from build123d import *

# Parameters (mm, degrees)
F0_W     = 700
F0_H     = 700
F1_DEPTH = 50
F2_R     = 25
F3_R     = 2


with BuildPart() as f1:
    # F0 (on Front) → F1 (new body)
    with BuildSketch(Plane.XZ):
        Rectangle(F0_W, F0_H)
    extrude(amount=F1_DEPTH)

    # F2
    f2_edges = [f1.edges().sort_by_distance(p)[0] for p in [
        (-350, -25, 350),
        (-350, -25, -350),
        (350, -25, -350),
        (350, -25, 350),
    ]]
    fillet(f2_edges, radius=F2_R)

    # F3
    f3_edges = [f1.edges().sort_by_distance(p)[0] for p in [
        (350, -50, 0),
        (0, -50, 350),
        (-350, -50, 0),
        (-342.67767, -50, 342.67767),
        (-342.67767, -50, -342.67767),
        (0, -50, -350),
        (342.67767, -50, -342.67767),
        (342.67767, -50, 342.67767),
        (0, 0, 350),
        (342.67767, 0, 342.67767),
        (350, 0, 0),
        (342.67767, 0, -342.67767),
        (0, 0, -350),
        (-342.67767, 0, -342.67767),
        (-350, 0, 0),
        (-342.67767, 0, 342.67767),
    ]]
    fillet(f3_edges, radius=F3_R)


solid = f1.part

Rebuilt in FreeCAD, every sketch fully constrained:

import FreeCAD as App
import Part
import Sketcher

V = App.Vector


def edges_at(feature, points):
    """Names of the edges that pass closest to the given points."""
    edges = feature.Shape.Edges
    near = lambda p: min(range(len(edges)), key=lambda i: edges[i].distToShape(Part.Vertex(*p))[0])
    return sorted({f"Edge{near(p) + 1}" for p in points})

doc = App.newDocument("Part")
params = doc.addObject("Spreadsheet::Sheet", "Params")
for row, (alias, value) in enumerate([
    ("sketch1_width", "700 mm"),
    ("pad1_length", "50 mm"),
    ("fillet_radius", "25 mm"),
    ("fillet2_radius", "2 mm"),
], start=1):
    params.set(f"A{row}", alias)
    params.set(f"B{row}", "=" + value)
    params.setAlias(f"B{row}", alias)

body = doc.addObject("PartDesign::Body", "Body")

# Sketch on XZ plane
sketch1 = doc.addObject("Sketcher::SketchObject", "Sketch")
body.addObject(sketch1)
sketch1.AttachmentSupport = (doc.XZ_Plane, [""])
sketch1.MapMode = "FlatFace"
sketch1.addGeometry([
    Part.LineSegment(V(-350, 350, 0), V(-350, -350, 0)),
    Part.LineSegment(V(-350, -350, 0), V(350, -350, 0)),
    Part.LineSegment(V(350, -350, 0), V(350, 350, 0)),
    Part.LineSegment(V(350, 350, 0), V(-350, 350, 0)),
], False)
sketch1.addConstraint([
    Sketcher.Constraint("Coincident", 0, 2, 1, 1),
    Sketcher.Constraint("Coincident", 1, 2, 2, 1),
    Sketcher.Constraint("Coincident", 2, 2, 3, 1),
    Sketcher.Constraint("Coincident", 3, 2, 0, 1),
    Sketcher.Constraint("Vertical", 0),
    Sketcher.Constraint("Horizontal", 1),
    Sketcher.Constraint("Vertical", 2),
    Sketcher.Constraint("Horizontal", 3),
    Sketcher.Constraint("Symmetric", 0, 2, 2, 2, -1, 1),
    Sketcher.Constraint("Equal", 3, 0),
    Sketcher.Constraint("DistanceX", 1, 1, 1, 2, 700.0),
])
sketch1.setExpression("Constraints[10]", "Params.sketch1_width")
pad1 = doc.addObject("PartDesign::Pad", "Pad")
body.addObject(pad1)
pad1.Profile = sketch1
pad1.setExpression("Length", "Params.pad1_length")
doc.recompute()

fillet = doc.addObject("PartDesign::Fillet", "Fillet")
body.addObject(fillet)
fillet.Base = (pad1, edges_at(pad1, [
    (-350, -25, 350),
    (-350, -25, -350),
    (350, -25, -350),
    (350, -25, 350),
]))
fillet.setExpression("Radius", "Params.fillet_radius")
doc.recompute()

fillet2 = doc.addObject("PartDesign::Fillet", "Fillet001")
body.addObject(fillet2)
fillet2.Base = (fillet, edges_at(fillet, [
    (350, -50, 0),
    (0, -50, 350),
    (-350, -50, 0),
    (-342.678, -50, 342.678),
    (-342.678, -50, -342.678),
    (0, -50, -350),
    (342.678, -50, -342.678),
    (342.678, -50, 342.678),
    (0, 0, 350),
    (342.678, 0, 342.678),
    (350, 0, 0),
    (342.678, 0, -342.678),
    (0, 0, -350),
    (-342.678, 0, -342.678),
    (-350, 0, 0),
    (-342.678, 0, 342.678),
]))
fillet2.setExpression("Radius", "Params.fillet2_radius")

doc.recompute()
